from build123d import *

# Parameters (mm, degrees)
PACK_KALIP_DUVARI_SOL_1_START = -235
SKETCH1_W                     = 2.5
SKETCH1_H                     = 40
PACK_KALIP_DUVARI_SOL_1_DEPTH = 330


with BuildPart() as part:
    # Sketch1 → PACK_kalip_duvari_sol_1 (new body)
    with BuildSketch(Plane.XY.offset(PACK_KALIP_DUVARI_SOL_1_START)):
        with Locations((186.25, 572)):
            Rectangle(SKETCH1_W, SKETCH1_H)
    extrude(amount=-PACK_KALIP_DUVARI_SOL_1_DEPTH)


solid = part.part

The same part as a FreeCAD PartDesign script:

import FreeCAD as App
import Part
import Sketcher

doc = App.newDocument("Part")
body = doc.addObject("PartDesign::Body", "Body")

# Sketch on XY plane
sketch1 = body.newObject("Sketcher::SketchObject", "Sketch")
sketch1.AttachmentSupport = (doc.getObject("XY_Plane"), [""])
sketch1.MapMode = "FlatFace"
sketch1.AttachmentOffset = App.Placement(App.Vector(0, 0, -235), App.Rotation())
sketch1.addGeometry([
    Part.LineSegment(App.Vector(185, 592, 0), App.Vector(185, 552, 0)),
    Part.LineSegment(App.Vector(185, 552, 0), App.Vector(187.5, 552, 0)),
    Part.LineSegment(App.Vector(187.5, 552, 0), App.Vector(187.5, 592, 0)),
    Part.LineSegment(App.Vector(187.5, 592, 0), App.Vector(185, 592, 0)),
], False)
sketch1.addConstraint([
    Sketcher.Constraint("Coincident", 0, 2, 1, 1),
    Sketcher.Constraint("Coincident", 1, 2, 2, 1),
    Sketcher.Constraint("Coincident", 2, 2, 3, 1),
    Sketcher.Constraint("Coincident", 3, 2, 0, 1),
    Sketcher.Constraint("Vertical", 0),
    Sketcher.Constraint("Horizontal", 1),
    Sketcher.Constraint("Vertical", 2),
    Sketcher.Constraint("Horizontal", 3),
    Sketcher.Constraint("DistanceY", 0, 2, 0, 1, 40.0),
    Sketcher.Constraint("DistanceX", 1, 1, 1, 2, 2.5),
    Sketcher.Constraint("DistanceX", -1, 1, 0, 2, 185.0),
    Sketcher.Constraint("DistanceY", -1, 1, 0, 2, 552.0),
])
pad1 = body.newObject("PartDesign::Pad", "Pad")
pad1.Profile = sketch1
pad1.Length = 330
pad1.Reversed = True

doc.recompute()
